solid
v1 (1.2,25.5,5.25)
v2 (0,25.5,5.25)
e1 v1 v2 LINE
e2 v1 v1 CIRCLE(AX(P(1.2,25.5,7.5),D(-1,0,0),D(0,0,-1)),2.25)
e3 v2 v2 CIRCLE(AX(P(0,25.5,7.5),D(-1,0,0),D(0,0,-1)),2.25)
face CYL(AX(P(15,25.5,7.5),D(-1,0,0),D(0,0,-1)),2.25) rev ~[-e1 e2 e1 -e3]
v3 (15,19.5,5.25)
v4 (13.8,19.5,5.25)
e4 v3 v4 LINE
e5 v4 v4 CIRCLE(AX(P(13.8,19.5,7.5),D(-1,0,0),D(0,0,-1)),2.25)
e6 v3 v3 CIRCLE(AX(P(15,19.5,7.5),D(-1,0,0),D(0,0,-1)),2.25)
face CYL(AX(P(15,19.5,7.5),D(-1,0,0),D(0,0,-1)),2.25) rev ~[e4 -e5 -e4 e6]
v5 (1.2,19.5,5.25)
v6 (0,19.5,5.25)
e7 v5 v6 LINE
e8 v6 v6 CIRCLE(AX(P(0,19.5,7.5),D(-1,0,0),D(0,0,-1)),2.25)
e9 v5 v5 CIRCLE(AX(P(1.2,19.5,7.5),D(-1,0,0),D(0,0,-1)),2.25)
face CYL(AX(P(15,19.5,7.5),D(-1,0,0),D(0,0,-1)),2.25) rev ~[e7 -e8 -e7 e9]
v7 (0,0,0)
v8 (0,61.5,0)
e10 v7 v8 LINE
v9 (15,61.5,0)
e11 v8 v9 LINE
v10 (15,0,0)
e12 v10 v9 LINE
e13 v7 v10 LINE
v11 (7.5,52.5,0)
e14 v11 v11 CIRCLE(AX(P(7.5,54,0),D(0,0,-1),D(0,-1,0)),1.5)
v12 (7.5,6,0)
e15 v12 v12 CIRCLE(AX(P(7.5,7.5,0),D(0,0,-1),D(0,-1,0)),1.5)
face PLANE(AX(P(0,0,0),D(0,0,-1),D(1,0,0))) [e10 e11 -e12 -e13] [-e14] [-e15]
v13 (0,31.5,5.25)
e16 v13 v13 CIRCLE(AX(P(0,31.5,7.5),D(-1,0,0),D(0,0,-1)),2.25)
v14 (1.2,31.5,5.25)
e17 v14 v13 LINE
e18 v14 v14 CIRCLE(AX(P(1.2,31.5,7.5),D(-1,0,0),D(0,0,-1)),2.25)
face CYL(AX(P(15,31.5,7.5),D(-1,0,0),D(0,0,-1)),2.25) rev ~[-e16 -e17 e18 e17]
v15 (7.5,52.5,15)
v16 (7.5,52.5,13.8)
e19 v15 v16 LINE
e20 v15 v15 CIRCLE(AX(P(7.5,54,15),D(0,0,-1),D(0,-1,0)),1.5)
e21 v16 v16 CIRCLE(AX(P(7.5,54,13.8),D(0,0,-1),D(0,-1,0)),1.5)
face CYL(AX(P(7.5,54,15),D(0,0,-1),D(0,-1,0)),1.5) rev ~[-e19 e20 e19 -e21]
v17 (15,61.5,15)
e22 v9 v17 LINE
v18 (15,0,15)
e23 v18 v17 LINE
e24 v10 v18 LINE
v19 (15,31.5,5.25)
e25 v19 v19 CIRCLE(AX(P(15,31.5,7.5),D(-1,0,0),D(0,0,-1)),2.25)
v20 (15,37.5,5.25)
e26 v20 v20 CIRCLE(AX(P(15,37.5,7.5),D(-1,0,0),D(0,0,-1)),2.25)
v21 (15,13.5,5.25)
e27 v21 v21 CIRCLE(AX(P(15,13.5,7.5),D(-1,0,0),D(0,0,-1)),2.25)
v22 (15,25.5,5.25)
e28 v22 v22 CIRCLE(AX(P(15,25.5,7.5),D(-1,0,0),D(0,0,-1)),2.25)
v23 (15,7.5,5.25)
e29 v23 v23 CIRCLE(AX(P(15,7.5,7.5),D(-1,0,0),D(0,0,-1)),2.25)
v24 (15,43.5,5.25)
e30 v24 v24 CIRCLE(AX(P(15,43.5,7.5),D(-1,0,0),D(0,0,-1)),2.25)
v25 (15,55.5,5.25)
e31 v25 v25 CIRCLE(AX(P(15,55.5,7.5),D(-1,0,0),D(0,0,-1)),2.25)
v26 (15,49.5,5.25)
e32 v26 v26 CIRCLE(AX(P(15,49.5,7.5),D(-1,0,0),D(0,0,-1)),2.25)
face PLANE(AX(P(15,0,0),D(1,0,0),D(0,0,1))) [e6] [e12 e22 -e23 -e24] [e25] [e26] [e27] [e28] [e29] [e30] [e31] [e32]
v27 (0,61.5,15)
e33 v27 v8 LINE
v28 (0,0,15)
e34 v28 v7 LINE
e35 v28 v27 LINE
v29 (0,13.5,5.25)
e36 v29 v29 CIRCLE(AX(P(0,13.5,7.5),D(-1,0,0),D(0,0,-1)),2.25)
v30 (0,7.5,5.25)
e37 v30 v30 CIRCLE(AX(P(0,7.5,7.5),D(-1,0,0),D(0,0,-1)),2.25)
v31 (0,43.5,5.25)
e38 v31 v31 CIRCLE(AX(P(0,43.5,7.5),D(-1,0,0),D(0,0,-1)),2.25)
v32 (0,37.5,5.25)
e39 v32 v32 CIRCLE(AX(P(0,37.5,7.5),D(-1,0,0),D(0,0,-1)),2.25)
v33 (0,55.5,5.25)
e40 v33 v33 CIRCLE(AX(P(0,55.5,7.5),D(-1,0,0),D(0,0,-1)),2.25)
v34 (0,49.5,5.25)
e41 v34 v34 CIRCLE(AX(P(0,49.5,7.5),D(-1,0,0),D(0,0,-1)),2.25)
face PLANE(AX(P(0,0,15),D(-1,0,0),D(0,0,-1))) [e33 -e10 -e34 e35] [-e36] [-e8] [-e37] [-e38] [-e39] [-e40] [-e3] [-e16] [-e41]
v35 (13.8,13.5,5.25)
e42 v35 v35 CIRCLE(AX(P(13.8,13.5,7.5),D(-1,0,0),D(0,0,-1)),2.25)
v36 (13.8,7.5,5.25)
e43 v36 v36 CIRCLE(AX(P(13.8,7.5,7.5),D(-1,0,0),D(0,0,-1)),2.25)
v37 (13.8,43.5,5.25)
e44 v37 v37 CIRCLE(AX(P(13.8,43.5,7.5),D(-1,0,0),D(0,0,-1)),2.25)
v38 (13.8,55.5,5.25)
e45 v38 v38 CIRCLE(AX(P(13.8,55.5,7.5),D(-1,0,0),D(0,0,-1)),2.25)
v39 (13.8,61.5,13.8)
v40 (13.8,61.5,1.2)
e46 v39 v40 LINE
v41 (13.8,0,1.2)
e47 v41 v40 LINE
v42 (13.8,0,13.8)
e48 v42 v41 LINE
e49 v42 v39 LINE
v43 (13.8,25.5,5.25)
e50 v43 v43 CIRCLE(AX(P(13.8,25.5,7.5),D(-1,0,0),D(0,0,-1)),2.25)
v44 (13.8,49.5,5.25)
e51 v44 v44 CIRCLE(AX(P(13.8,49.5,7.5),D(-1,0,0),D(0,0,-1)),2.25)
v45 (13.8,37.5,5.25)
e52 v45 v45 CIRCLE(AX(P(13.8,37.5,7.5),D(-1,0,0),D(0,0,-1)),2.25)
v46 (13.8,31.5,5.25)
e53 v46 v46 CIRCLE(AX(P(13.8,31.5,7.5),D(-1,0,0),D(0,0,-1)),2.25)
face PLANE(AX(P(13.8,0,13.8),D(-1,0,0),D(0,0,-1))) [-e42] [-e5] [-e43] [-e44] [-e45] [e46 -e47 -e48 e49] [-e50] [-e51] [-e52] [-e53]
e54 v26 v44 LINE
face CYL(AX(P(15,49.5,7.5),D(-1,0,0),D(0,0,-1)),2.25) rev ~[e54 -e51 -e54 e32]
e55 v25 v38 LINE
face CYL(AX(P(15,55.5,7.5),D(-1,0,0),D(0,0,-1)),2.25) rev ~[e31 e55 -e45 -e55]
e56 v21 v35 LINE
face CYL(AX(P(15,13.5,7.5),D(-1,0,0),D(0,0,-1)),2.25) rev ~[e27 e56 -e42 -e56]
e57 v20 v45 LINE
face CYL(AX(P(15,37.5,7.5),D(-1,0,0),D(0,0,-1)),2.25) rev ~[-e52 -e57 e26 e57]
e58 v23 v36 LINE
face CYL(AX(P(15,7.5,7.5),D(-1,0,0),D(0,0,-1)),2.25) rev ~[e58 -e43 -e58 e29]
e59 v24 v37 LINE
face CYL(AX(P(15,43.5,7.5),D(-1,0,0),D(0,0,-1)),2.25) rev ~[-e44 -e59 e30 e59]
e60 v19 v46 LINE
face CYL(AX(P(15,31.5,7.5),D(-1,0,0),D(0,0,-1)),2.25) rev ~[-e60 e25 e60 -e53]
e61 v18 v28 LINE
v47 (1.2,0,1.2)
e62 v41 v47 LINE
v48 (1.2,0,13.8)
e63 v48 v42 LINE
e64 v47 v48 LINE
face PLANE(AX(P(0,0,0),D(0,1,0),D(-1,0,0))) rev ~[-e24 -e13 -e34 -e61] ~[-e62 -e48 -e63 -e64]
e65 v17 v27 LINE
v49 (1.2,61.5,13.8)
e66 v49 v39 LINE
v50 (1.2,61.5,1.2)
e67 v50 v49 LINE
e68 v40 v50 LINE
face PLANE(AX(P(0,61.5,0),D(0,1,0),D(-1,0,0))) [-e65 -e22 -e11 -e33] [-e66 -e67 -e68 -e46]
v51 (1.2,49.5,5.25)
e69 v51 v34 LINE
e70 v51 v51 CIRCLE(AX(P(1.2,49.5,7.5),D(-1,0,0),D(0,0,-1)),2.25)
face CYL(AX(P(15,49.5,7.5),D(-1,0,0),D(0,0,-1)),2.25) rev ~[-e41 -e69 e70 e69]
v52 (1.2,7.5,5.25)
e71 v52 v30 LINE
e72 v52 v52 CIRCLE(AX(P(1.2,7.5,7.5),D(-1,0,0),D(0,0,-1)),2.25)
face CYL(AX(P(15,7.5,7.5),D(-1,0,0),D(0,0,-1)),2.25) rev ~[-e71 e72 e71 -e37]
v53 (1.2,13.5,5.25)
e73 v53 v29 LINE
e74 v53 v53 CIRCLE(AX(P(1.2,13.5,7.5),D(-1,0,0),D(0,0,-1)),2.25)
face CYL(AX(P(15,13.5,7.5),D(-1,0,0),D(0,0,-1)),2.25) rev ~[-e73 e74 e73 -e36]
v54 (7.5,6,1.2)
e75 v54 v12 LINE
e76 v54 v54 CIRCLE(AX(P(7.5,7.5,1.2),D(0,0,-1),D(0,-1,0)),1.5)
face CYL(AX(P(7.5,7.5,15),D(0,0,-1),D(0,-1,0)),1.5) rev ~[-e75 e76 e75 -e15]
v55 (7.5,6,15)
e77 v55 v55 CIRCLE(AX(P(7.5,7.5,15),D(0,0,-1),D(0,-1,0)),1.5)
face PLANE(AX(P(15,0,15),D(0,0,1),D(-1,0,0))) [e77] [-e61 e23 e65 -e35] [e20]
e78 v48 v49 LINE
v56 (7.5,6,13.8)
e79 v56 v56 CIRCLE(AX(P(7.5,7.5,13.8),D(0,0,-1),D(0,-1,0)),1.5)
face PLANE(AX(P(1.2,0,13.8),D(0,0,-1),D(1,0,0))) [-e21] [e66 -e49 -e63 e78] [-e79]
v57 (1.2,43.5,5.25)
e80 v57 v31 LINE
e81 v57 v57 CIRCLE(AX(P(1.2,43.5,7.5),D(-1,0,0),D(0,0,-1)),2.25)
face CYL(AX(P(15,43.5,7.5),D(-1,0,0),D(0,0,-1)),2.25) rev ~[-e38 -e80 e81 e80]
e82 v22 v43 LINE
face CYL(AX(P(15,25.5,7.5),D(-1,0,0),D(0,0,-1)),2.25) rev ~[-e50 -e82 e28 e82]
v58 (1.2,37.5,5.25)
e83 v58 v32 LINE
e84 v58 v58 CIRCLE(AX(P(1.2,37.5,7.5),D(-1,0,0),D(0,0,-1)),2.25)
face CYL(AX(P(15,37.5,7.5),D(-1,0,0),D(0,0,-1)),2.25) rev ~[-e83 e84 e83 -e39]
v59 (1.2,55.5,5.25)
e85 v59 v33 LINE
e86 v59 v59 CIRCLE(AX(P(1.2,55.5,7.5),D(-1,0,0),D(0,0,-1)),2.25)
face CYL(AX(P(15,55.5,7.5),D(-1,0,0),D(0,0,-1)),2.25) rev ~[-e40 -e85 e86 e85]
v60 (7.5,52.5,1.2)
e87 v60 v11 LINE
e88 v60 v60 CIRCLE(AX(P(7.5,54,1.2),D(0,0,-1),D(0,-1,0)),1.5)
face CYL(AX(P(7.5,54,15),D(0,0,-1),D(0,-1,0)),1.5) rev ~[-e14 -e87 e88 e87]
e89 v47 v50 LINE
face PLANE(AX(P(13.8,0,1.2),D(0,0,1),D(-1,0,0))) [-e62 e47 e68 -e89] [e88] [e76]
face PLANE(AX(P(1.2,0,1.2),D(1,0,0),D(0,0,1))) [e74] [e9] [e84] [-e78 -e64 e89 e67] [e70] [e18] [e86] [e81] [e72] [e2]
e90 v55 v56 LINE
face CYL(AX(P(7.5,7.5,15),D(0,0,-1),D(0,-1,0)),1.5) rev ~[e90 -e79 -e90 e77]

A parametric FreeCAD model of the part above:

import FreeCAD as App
import Part
import Sketcher
Q = App.Units.Quantity

doc = App.newDocument("Part")
body = doc.addObject("PartDesign::Body", "Body")

# Sketch on XZ plane
sketch1 = body.newObject("Sketcher::SketchObject", "Sketch")
sketch1.AttachmentSupport = (doc.getObject("XZ_Plane"), [""])
sketch1.MapMode = "FlatFace"
sketch1.addGeometry([
    Part.LineSegment(App.Vector(15, 0, 0), App.Vector(0, 0, 0)),  # 0
    Part.LineSegment(App.Vector(0, 0, 0), App.Vector(0, 15, 0)),  # 1
    Part.LineSegment(App.Vector(0, 15, 0), App.Vector(15, 15, 0)),  # 2
    Part.LineSegment(App.Vector(15, 15, 0), App.Vector(15, 0, 0)),  # 3
    Part.LineSegment(App.Vector(14, 14, 0), App.Vector(1, 14, 0)),  # 4
    Part.LineSegment(App.Vector(1, 14, 0), App.Vector(1, 1, 0)),  # 5
    Part.LineSegment(App.Vector(1, 1, 0), App.Vector(14, 1, 0)),  # 6
    Part.LineSegment(App.Vector(14, 1, 0), App.Vector(14, 14, 0)),  # 7
], False)
sketch1.addConstraint([
    Sketcher.Constraint("Coincident", 0, 2, 1, 1),
    Sketcher.Constraint("Coincident", 1, 2, 2, 1),
    Sketcher.Constraint("Coincident", 2, 2, 3, 1),
    Sketcher.Constraint("Coincident", 3, 2, 0, 1),
    Sketcher.Constraint("Coincident", 4, 2, 5, 1),
    Sketcher.Constraint("Coincident", 5, 2, 6, 1),
    Sketcher.Constraint("Coincident", 6, 2, 7, 1),
    Sketcher.Constraint("Coincident", 7, 2, 4, 1),
    Sketcher.Constraint("Horizontal", 0),
    Sketcher.Constraint("Vertical", 1),
    Sketcher.Constraint("Horizontal", 2),
    Sketcher.Constraint("Vertical", 3),
    Sketcher.Constraint("Horizontal", 4),
    Sketcher.Constraint("Vertical", 5),
    Sketcher.Constraint("Horizontal", 6),
    Sketcher.Constraint("Vertical", 7),
    Sketcher.Constraint("Coincident", 0, 2, -1, 1),
    Sketcher.Constraint("Equal", 2, 1),
    Sketcher.Constraint("Equal", 6, 5),
    Sketcher.Constraint("DistanceX", 0, 2, 0, 1, Q("15 mm")),
    Sketcher.Constraint("DistanceX", -1, 1, 4, 2, Q("1.2 mm")),
    Sketcher.Constraint("DistanceY", -1, 1, 5, 2, Q("1.2 mm")),
    Sketcher.Constraint("DistanceY", 4, 2, 1, 2, Q("1.2 mm")),
])
pad1 = body.newObject("PartDesign::Pad", "Pad")
pad1.Profile = sketch1
pad1.Length = 61.5
pad1.Reversed = True

# Sketch on XY plane
sketch2 = body.newObject("Sketcher::SketchObject", "Sketch001")
sketch2.AttachmentSupport = (doc.getObject("XY_Plane"), [""])
sketch2.MapMode = "FlatFace"
sketch2.AttachmentOffset = App.Placement(App.Vector(0, 0, 15), App.Rotation())
sketch2.addGeometry([
    Part.Circle(App.Vector(7.5, 54, 0), App.Vector(0, 0, 1), 1.5),
    Part.Circle(App.Vector(7.5, 7.5, 0), App.Vector(0, 0, 1), 1.5),
], False)
sketch2.addConstraint([
    Sketcher.Constraint("Equal", 0, 1),
    Sketcher.Constraint("Vertical", 0, 3, 1, 3),
    Sketcher.Constraint("Diameter", 0, Q("3 mm")),
    Sketcher.Constraint("DistanceY", -1, 1, 0, 3, Q("54 mm")),
    Sketcher.Constraint("DistanceX", -1, 1, 0, 3, Q("7.5 mm")),
    Sketcher.Constraint("DistanceY", -1, 1, 1, 3, Q("7.5 mm")),
])
doc.recompute()
hole = body.newObject("PartDesign::Hole", "Hole")
hole.Profile = sketch2
hole.ThreadType = "None"
hole.Diameter = 3
hole.DepthType = "ThroughAll"

# Sketch on YZ plane
sketch3 = body.newObject("Sketcher::SketchObject", "Sketch002")
sketch3.AttachmentSupport = (doc.getObject("YZ_Plane"), [""])
sketch3.MapMode = "FlatFace"
sketch3.AttachmentOffset = App.Placement(App.Vector(0, 0, 15), App.Rotation())
sketch3.addGeometry([
    Part.Circle(App.Vector(55.5, 7.5, 0), App.Vector(0, 0, 1), 2.2),  # 0
    Part.Circle(App.Vector(49.5, 7.5, 0), App.Vector(0, 0, 1), 2.2),  # 1
    Part.Circle(App.Vector(43.5, 7.5, 0), App.Vector(0, 0, 1), 2.2),  # 2
    Part.Circle(App.Vector(37.5, 7.5, 0), App.Vector(0, 0, 1), 2.2),  # 3
    Part.Circle(App.Vector(31.5, 7.5, 0), App.Vector(0, 0, 1), 2.2),  # 4
    Part.Circle(App.Vector(25.5, 7.5, 0), App.Vector(0, 0, 1), 2.2),  # 5
    Part.Circle(App.Vector(19.5, 7.5, 0), App.Vector(0, 0, 1), 2.2),  # 6
    Part.Circle(App.Vector(13.5, 7.5, 0), App.Vector(0, 0, 1), 2.2),  # 7
    Part.Circle(App.Vector(7.5, 7.5, 0), App.Vector(0, 0, 1), 2.2),  # 8
], False)
sketch3.addConstraint([
    Sketcher.Constraint("Equal", 0, 1),
    Sketcher.Constraint("Equal", 1, 2),
    Sketcher.Constraint("Equal", 2, 3),
    Sketcher.Constraint("Equal", 3, 4),
    Sketcher.Constraint("Equal", 4, 5),
    Sketcher.Constraint("Equal", 5, 6),
    Sketcher.Constraint("Equal", 6, 7),
    Sketcher.Constraint("Equal", 7, 8),
    Sketcher.Constraint("Horizontal", 0, 3, 1, 3),
    Sketcher.Constraint("Horizontal", 1, 3, 2, 3),
    Sketcher.Constraint("Horizontal", 2, 3, 3, 3),
    Sketcher.Constraint("Horizontal", 3, 3, 4, 3),
    Sketcher.Constraint("Horizontal", 4, 3, 5, 3),
    Sketcher.Constraint("Horizontal", 5, 3, 6, 3),
    Sketcher.Constraint("Horizontal", 6, 3, 7, 3),
    Sketcher.Constraint("Horizontal", 7, 3, 8, 3),
    Sketcher.Constraint("Diameter", 0, Q("4.5 mm")),
    Sketcher.Constraint("DistanceX", 1, 3, 0, 3, Q("6 mm")),
    Sketcher.Constraint("DistanceX", 2, 3, 1, 3, Q("6 mm")),
    Sketcher.Constraint("DistanceX", 3, 3, 2, 3, Q("6 mm")),
    Sketcher.Constraint("DistanceX", 4, 3, 3, 3, Q("6 mm")),
    Sketcher.Constraint("DistanceX", 5, 3, 4, 3, Q("6 mm")),
    Sketcher.Constraint("DistanceX", 6, 3, 5, 3, Q("6 mm")),
    Sketcher.Constraint("DistanceX", 7, 3, 6, 3, Q("6 mm")),
    Sketcher.Constraint("DistanceX", 8, 3, 7, 3, Q("6 mm")),
    Sketcher.Constraint("DistanceX", -1, 1, 0, 3, Q("55.5 mm")),
    Sketcher.Constraint("DistanceY", -1, 1, 0, 3, Q("7.5 mm")),
])
doc.recompute()
hole2 = body.newObject("PartDesign::Hole", "Hole001")
hole2.Profile = sketch3
hole2.ThreadType = "None"
hole2.Diameter = 4.5
hole2.DepthType = "ThroughAll"

doc.recompute()
